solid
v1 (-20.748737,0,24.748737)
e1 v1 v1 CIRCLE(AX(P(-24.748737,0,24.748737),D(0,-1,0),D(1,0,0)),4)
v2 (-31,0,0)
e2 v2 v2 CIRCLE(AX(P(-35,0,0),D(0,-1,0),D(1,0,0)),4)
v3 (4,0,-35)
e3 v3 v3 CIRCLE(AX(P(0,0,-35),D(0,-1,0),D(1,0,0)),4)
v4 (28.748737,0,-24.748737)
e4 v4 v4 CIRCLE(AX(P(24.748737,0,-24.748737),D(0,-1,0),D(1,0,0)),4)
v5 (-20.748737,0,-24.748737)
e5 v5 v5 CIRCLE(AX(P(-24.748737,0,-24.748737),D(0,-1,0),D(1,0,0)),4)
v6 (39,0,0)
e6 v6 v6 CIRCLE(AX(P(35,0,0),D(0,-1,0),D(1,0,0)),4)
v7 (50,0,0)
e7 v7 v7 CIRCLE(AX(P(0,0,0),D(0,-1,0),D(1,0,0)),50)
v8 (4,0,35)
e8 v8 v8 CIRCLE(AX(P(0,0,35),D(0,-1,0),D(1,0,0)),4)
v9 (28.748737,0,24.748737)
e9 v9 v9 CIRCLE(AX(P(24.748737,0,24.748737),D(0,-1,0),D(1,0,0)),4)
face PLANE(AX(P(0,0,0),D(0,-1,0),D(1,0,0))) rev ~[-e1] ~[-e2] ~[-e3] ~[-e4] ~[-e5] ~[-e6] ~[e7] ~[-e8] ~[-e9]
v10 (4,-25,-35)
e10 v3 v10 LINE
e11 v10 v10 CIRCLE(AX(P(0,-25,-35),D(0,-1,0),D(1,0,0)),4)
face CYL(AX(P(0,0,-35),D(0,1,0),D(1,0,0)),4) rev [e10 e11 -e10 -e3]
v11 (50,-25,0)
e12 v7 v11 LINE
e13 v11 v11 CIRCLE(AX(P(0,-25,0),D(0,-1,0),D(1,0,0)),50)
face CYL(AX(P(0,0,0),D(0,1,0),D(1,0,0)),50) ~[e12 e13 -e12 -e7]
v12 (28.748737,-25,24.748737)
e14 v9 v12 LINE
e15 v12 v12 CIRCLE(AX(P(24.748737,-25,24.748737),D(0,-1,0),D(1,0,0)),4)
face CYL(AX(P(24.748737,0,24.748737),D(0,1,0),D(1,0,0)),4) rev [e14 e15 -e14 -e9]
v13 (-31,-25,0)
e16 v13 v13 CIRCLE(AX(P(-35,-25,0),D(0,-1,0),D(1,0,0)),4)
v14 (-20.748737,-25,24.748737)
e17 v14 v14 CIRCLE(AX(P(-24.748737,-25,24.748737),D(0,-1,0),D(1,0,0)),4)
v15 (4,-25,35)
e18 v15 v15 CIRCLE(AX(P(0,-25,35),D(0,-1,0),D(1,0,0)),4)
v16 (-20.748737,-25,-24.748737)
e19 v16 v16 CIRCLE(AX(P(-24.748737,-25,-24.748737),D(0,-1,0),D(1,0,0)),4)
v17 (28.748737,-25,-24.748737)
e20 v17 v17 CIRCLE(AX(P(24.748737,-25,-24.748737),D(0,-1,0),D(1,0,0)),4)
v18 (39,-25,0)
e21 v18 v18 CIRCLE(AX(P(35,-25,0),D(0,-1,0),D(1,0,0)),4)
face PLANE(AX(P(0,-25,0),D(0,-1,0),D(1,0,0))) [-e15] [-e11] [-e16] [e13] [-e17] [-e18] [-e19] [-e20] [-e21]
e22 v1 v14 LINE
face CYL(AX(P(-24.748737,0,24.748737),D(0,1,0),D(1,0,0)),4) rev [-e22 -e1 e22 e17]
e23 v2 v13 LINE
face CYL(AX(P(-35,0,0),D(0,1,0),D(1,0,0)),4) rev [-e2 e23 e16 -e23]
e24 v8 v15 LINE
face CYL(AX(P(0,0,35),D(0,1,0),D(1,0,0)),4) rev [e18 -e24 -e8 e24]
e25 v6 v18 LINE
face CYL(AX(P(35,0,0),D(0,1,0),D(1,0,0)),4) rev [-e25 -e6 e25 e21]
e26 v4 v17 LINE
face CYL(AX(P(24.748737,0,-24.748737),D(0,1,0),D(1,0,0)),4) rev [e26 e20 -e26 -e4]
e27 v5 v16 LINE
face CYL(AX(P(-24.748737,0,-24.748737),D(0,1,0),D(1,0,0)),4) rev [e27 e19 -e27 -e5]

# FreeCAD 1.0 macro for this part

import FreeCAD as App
import Part
import Sketcher
Q = App.Units.Quantity

doc = App.newDocument("Part")
body = doc.addObject("PartDesign::Body", "Body")

sketch1 = doc.addObject("Sketcher::SketchObject", "Sketch")
body.addObject(sketch1)
sketch1.AttachmentSupport = (doc.XZ_Plane, [""])
sketch1.MapMode = "FlatFace"
sketch1.addGeometry([
    Part.Circle(App.Vector(0, 0, 0), App.Vector(0, 0, 1), 50),
    Part.Circle(App.Vector(-24.748737, -24.748737, 0), App.Vector(0, 0, 1), 4),
    Part.Circle(App.Vector(0, -35, 0), App.Vector(0, 0, 1), 4),
    Part.Circle(App.Vector(24.748737, -24.748737, 0), App.Vector(0, 0, 1), 4),
    Part.Circle(App.Vector(-35, 0, 0), App.Vector(0, 0, 1), 4),
    Part.Circle(App.Vector(-24.748737, 24.748737, 0), App.Vector(0, 0, 1), 4),
    Part.Circle(App.Vector(35, 0, 0), App.Vector(0, 0, 1), 4),
    Part.Circle(App.Vector(0, 35, 0), App.Vector(0, 0, 1), 4),
    Part.Circle(App.Vector(24.748737, 24.748737, 0), App.Vector(0, 0, 1), 4),
], False)
sketch1.addConstraint([
    Sketcher.Constraint("Coincident", 0, 3, -1, 1),
    Sketcher.Constraint("Equal", 1, 2),
    Sketcher.Constraint("Equal", 2, 3),
    Sketcher.Constraint("Equal", 3, 4),
    Sketcher.Constraint("Equal", 4, 5),
    Sketcher.Constraint("Equal", 5, 6),
    Sketcher.Constraint("Equal", 6, 7),
    Sketcher.Constraint("Equal", 7, 8),
    Sketcher.Constraint("Symmetric", 3, 3, 5, 3, -1, 1),
    Sketcher.Constraint("Symmetric", 4, 3, 6, 3, -1, 1),
    Sketcher.Constraint("Symmetric", 2, 3, 7, 3, -1, 1),
    Sketcher.Constraint("Symmetric", 1, 3, 8, 3, -1, 1),
    Sketcher.Constraint("Symmetric", 1, 3, 3, 3, -2),
    Sketcher.Constraint("PointOnObject", 2, 3, -2),
    Sketcher.Constraint("PointOnObject", 4, 3, -1),
    Sketcher.Constraint("Diameter", 0, Q("100 mm")),
    Sketcher.Constraint("Diameter", 1, Q("8 mm")),
    Sketcher.Constraint("DistanceY", 2, 3, -1, 1, Q("35 mm")),
    Sketcher.Constraint("DistanceX", 4, 3, -1, 1, Q("35 mm")),
    Sketcher.Constraint("DistanceX", 1, 3, -1, 1, Q("24.748737 mm")),
    Sketcher.Constraint("DistanceY", 1, 3, -1, 1, Q("24.748737 mm")),
])
pad1 = doc.addObject("PartDesign::Pad", "Pad")
body.addObject(pad1)
pad1.Profile = sketch1
pad1.Length = 25

doc.recompute()
